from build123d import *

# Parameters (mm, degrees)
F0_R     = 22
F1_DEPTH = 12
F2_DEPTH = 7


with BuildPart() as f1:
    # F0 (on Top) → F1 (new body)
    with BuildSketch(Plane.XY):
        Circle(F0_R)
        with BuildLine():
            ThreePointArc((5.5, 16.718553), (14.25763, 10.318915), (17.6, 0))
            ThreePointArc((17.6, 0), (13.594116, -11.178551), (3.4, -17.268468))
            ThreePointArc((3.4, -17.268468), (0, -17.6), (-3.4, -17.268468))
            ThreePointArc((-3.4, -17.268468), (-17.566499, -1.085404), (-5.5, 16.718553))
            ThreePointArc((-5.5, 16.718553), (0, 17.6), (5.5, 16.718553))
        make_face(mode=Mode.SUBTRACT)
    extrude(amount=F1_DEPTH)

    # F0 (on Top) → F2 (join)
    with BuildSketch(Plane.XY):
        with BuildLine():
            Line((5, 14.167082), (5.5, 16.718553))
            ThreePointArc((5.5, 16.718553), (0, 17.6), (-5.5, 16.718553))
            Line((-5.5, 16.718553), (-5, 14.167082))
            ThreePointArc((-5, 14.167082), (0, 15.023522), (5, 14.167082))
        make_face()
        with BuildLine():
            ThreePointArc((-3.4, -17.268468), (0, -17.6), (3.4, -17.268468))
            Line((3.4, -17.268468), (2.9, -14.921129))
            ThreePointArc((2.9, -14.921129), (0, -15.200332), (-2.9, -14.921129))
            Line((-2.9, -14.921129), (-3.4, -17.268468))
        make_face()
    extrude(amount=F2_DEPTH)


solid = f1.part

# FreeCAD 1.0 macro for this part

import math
import FreeCAD as App
import Part
import Sketcher

V = App.Vector

doc = App.newDocument("Part")
params = doc.addObject("Spreadsheet::Sheet", "Params")
for row, (alias, value) in enumerate([
    ("sketch1_diameter", "44 mm"),
    ("sketch1_radius", "17.599999 mm"),
    ("pad1_length", "12 mm"),
    ("sketch2_length", "2.600001 mm"),
    ("sketch2_length2", "2.4 mm"),
    ("pad2_length", "7 mm"),
], start=1):
    params.set(f"A{row}", alias)
    params.set(f"B{row}", "=" + value)
    params.setAlias(f"B{row}", alias)

body = doc.addObject("PartDesign::Body", "Body")

sketch1 = body.newObject("Sketcher::SketchObject", "Sketch")
sketch1.AttachmentSupport = (doc.getObject("XY_Plane"), [""])
sketch1.MapMode = "FlatFace"
sketch1.addGeometry([
    Part.Circle(V(0, 0, 0), V(0, 0, 1), 22),
    Part.ArcOfCircle(Part.Circle(V(0, 0, 0), V(0, 0, 1), 18), math.radians(72), math.radians(108)),
    Part.ArcOfCircle(Part.Circle(V(0, 0, 0), V(0, 0, 1), 18), math.radians(0), math.radians(72)),
    Part.ArcOfCircle(Part.Circle(V(0, 0, 0), V(0, 0, 1), 18), math.radians(-79), math.radians(0)),
    Part.ArcOfCircle(Part.Circle(V(0, 0, 0), V(0, 0, 1), 18), math.radians(-101), math.radians(-79)),
    Part.ArcOfCircle(Part.Circle(V(0, 0, 0), V(0, 0, 1), 18), math.radians(108), math.radians(259)),
], False)
sketch1.addConstraint([
    Sketcher.Constraint("Tangent", 1, 1, 2, 2),
    Sketcher.Constraint("Tangent", 2, 1, 3, 2),
    Sketcher.Constraint("Tangent", 3, 1, 4, 2),
    Sketcher.Constraint("Tangent", 4, 1, 5, 2),
    Sketcher.Constraint("Tangent", 5, 1, 1, 2),
    Sketcher.Constraint("Coincident", 0, 3, -1, 1),
    Sketcher.Constraint("Coincident", 1, 3, -1, 1),
    Sketcher.Constraint("Coincident", 3, 3, -1, 1),
    Sketcher.Constraint("PointOnObject", 2, 1, -1),
    Sketcher.Constraint("Horizontal", 3, 1, 4, 1),
    Sketcher.Constraint("Horizontal", 1, 1, 5, 1),
    Sketcher.Constraint("Diameter", 0, 44.0),
    Sketcher.Constraint("Radius", 2, 17.599999),
    Sketcher.Constraint("DistanceX", 5, 1, 1, 1, 11.0),
    Sketcher.Constraint("DistanceX", -1, 1, 3, 1, 3.4),
])
sketch1.setExpression("Constraints[11]", "Params.sketch1_diameter")
sketch1.setExpression("Constraints[12]", "Params.sketch1_radius")
pad1 = body.newObject("PartDesign::Pad", "Pad")
pad1.Profile = sketch1
pad1.setExpression("Length", "Params.pad1_length")

sketch2 = body.newObject("Sketcher::SketchObject", "Sketch001")
sketch2.AttachmentSupport = (doc.getObject("XY_Plane"), [""])
sketch2.MapMode = "FlatFace"
sketch2.addGeometry([
    Part.LineSegment(V(5, 14.2, 0), V(5.5, 16.7, 0)),
    Part.ArcOfCircle(Part.Circle(V(0, 0, 0), V(0, 0, 1), 17.6), math.radians(72), math.radians(108)),
    Part.LineSegment(V(-5.5, 16.7, 0), V(-5, 14.2, 0)),
    Part.ArcOfCircle(Part.Circle(V(0, 0, 0), V(0, 0, 1), 15), math.radians(71), math.radians(109)),
    Part.ArcOfCircle(Part.Circle(V(0, 0, 0), V(0, 0, 1), 17.6), math.radians(-101), math.radians(-79)),
    Part.LineSegment(V(3.4, -17.3, 0), V(2.9, -14.9, 0)),
    Part.ArcOfCircle(Part.Circle(V(0, 0, 0), V(0, 0, 1), 15.2), math.radians(-101), math.radians(-79)),
    Part.LineSegment(V(-2.9, -14.9, 0), V(-3.4, -17.3, 0)),
], False)
sketch2.addConstraint([
    Sketcher.Constraint("Coincident", 0, 2, 1, 1),
    Sketcher.Constraint("Coincident", 1, 2, 2, 1),
    Sketcher.Constraint("Coincident", 2, 2, 3, 2),
    Sketcher.Constraint("Coincident", 3, 1, 0, 1),
    Sketcher.Constraint("Coincident", 4, 2, 5, 1),
    Sketcher.Constraint("Coincident", 5, 2, 6, 2),
    Sketcher.Constraint("Coincident", 6, 1, 7, 1),
    Sketcher.Constraint("Coincident", 7, 2, 4, 1),
    Sketcher.Constraint("Coincident", 1, 3, -1, 1),
    Sketcher.Constraint("Coincident", 3, 3, -1, 1),
    Sketcher.Constraint("Coincident", 6, 3, -1, 1),
    Sketcher.Constraint("Symmetric", 4, 2, 7, 2, -2),
    Sketcher.Constraint("Horizontal", 0, 2, 1, 2),
    Sketcher.Constraint("Horizontal", 2, 2, 3, 1),
    Sketcher.Constraint("Horizontal", 5, 2, 6, 1),
    Sketcher.Constraint("DistanceX", 2, 2, -1, 1, 5.0),
    Sketcher.Constraint("DistanceX", 1, 2, 0, 2, 11.0),
    Sketcher.Constraint("Distance", 0, 2.600001),
    Sketcher.Constraint("Distance", 5, 2.4),
    Sketcher.Constraint("DistanceX", -1, 1, 4, 2, 3.4),
    Sketcher.Constraint("DistanceX", -1, 1, 5, 2, 2.9),
    Sketcher.Constraint("Radius", 1, 17.600008),
    Sketcher.Constraint("Radius", 4, 17.59998),
    Sketcher.Constraint("Radius", 6, 15.200328),
])
sketch2.setExpression("Constraints[17]", "Params.sketch2_length")
sketch2.setExpression("Constraints[18]", "Params.sketch2_length2")
pad2 = body.newObject("PartDesign::Pad", "Pad001")
pad2.Profile = sketch2
pad2.setExpression("Length", "Params.pad2_length")

doc.recompute()
